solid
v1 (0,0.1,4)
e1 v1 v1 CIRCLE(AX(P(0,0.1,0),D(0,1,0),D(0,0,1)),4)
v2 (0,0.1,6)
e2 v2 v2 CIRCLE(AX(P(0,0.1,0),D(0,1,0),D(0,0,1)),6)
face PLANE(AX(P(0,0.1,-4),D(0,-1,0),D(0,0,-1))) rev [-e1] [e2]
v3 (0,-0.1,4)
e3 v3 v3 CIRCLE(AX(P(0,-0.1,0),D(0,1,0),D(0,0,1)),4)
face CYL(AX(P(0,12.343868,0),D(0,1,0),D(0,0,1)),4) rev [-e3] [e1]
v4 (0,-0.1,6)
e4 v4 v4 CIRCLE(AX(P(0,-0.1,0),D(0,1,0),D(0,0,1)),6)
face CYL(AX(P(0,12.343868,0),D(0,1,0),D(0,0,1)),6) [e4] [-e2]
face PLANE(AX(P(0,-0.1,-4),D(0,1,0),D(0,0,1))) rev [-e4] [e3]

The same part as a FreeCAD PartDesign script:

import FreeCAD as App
import Part
import Sketcher

V = App.Vector
Q = App.Units.Quantity

doc = App.newDocument("Part")
body = doc.addObject("PartDesign::Body", "Body")

# Sketch on YZ plane
sketch1 = body.newObject("Sketcher::SketchObject", "Sketch")
sketch1.AttachmentSupport = (doc.getObject("YZ_Plane"), [""])
sketch1.MapMode = "FlatFace"
sketch1.addGeometry(Part.LineSegment(V(0.1, -4, 0), V(-0.1, -4, 0)), False)
sketch1.addGeometry(Part.LineSegment(V(-0.1, -4, 0), V(-0.1, -6, 0)), False)
sketch1.addGeometry(Part.LineSegment(V(-0.1, -6, 0), V(0.1, -6, 0)), False)
sketch1.addGeometry(Part.LineSegment(V(0.1, -6, 0), V(0.1, -4, 0)), False)
sketch1.addConstraint(Sketcher.Constraint("Coincident", 0, 2, 1, 1))
sketch1.addConstraint(Sketcher.Constraint("Coincident", 1, 2, 2, 1))
sketch1.addConstraint(Sketcher.Constraint("Coincident", 2, 2, 3, 1))
sketch1.addConstraint(Sketcher.Constraint("Coincident", 3, 2, 0, 1))
sketch1.addConstraint(Sketcher.Constraint("Horizontal", 0))
sketch1.addConstraint(Sketcher.Constraint("Vertical", 1))
sketch1.addConstraint(Sketcher.Constraint("Horizontal", 2))
sketch1.addConstraint(Sketcher.Constraint("Vertical", 3))
sketch1.addConstraint(Sketcher.Constraint("DistanceY", 1, 2, 1, 1, Q("2 mm")))
sketch1.addConstraint(Sketcher.Constraint("DistanceX", 0, 2, 0, 1, Q("0.2 mm")))
sketch1.addConstraint(Sketcher.Constraint("DistanceY", 0, 2, -1, 1, Q("4 mm")))
sketch1.addConstraint(Sketcher.Constraint("DistanceX", 0, 2, -1, 1, Q("0.1 mm")))
revolution = body.newObject("PartDesign::Revolution", "Revolution")
revolution.Profile = sketch1
revolution.ReferenceAxis = (sketch1, ["H_Axis"])
revolution.Angle = 360

doc.recompute()
